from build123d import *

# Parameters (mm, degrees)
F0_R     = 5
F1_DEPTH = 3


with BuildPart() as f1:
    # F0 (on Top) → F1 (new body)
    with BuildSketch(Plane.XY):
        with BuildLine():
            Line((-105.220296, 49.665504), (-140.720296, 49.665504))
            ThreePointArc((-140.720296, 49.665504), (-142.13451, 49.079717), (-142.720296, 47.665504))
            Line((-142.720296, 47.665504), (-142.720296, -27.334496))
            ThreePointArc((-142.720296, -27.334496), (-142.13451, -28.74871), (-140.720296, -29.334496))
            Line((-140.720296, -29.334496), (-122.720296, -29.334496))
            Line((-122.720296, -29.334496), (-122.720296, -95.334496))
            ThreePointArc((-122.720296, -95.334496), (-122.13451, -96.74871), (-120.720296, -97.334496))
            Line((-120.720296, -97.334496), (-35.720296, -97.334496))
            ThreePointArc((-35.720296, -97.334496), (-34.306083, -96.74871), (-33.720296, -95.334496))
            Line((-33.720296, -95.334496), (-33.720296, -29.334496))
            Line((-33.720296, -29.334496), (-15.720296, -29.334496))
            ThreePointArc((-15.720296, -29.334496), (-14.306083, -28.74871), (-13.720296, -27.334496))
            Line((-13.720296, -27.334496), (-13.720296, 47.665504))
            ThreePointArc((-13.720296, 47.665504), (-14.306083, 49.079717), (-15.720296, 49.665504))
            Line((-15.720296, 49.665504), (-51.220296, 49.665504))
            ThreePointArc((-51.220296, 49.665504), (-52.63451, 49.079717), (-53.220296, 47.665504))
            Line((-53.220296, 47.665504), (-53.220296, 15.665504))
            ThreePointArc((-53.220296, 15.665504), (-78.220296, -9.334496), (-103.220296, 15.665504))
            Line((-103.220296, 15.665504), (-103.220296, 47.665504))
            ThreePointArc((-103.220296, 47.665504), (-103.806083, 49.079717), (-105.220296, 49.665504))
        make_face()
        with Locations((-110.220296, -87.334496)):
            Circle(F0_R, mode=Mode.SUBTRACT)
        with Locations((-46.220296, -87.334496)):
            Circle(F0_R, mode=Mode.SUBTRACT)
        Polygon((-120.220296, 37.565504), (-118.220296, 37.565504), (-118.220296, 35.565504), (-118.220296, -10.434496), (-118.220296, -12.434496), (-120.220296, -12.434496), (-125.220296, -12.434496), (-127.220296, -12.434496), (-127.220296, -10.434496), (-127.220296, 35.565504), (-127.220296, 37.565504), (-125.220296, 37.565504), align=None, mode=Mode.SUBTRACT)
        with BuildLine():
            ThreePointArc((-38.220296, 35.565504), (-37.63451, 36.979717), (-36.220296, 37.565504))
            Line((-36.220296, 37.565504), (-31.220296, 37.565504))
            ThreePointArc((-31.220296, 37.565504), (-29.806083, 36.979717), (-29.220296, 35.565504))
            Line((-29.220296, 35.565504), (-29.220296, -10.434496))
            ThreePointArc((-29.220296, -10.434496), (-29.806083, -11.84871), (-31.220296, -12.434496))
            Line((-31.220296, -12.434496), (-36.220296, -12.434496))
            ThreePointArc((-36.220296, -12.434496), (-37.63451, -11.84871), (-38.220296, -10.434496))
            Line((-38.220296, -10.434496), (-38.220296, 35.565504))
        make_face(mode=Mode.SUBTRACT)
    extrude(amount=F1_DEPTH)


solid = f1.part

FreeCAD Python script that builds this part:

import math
import FreeCAD as App
import Part
import Sketcher
from FreeCAD import Vector
Q = App.Units.Quantity


def add_polygon(sketch, points):
    """Adds a closed chain of lines whose ends are joined by coincident constraints."""
    first, n = sketch.GeometryCount, len(points)
    for a, b in zip(points, points[1:] + points[:1]):
        sketch.addGeometry(Part.LineSegment(App.Vector(*a, 0), App.Vector(*b, 0)), False)
    for i in range(n):
        sketch.addConstraint(Sketcher.Constraint("Coincident", first + i, 2, first + (i + 1) % n, 1))

doc = App.newDocument("Part")
body = doc.addObject("PartDesign::Body", "Body")

# Sketch on XY plane
sketch1 = body.newObject("Sketcher::SketchObject", "Sketch")
sketch1.AttachmentSupport = (doc.getObject("XY_Plane"), [""])
sketch1.MapMode = "FlatFace"
sketch1.addGeometry(Part.LineSegment(Vector(-105.2, 49.7, 0), Vector(-140.7, 49.7, 0)), False)  # 0
sketch1.addGeometry(Part.ArcOfCircle(Part.Circle(Vector(-140.7, 47.7, 0), Vector(0, 0, 1), 2), math.radians(90), math.radians(180)), False)  # 1
sketch1.addGeometry(Part.LineSegment(Vector(-142.7, 47.7, 0), Vector(-142.7, -27.3, 0)), False)  # 2
sketch1.addGeometry(Part.ArcOfCircle(Part.Circle(Vector(-140.7, -27.3, 0), Vector(0, 0, 1), 2), math.radians(180), math.radians(270)), False)  # 3
sketch1.addGeometry(Part.LineSegment(Vector(-140.7, -29.3, 0), Vector(-122.7, -29.3, 0)), False)  # 4
sketch1.addGeometry(Part.LineSegment(Vector(-122.7, -29.3, 0), Vector(-122.7, -95.3, 0)), False)  # 5
sketch1.addGeometry(Part.ArcOfCircle(Part.Circle(Vector(-120.7, -95.3, 0), Vector(0, 0, 1), 2), math.radians(180), math.radians(270)), False)  # 6
sketch1.addGeometry(Part.LineSegment(Vector(-120.7, -97.3, 0), Vector(-35.7, -97.3, 0)), False)  # 7
sketch1.addGeometry(Part.ArcOfCircle(Part.Circle(Vector(-35.7, -95.3, 0), Vector(0, 0, 1), 2), math.radians(-90), math.radians(0)), False)  # 8
sketch1.addGeometry(Part.LineSegment(Vector(-33.7, -95.3, 0), Vector(-33.7, -29.3, 0)), False)  # 9
sketch1.addGeometry(Part.LineSegment(Vector(-33.7, -29.3, 0), Vector(-15.7, -29.3, 0)), False)  # 10
sketch1.addGeometry(Part.ArcOfCircle(Part.Circle(Vector(-15.7, -27.3, 0), Vector(0, 0, 1), 2), math.radians(-90), math.radians(0)), False)  # 11
sketch1.addGeometry(Part.LineSegment(Vector(-13.7, -27.3, 0), Vector(-13.7, 47.7, 0)), False)  # 12
sketch1.addGeometry(Part.ArcOfCircle(Part.Circle(Vector(-15.7, 47.7, 0), Vector(0, 0, 1), 2), math.radians(0), math.radians(90)), False)  # 13
sketch1.addGeometry(Part.LineSegment(Vector(-15.7, 49.7, 0), Vector(-51.2, 49.7, 0)), False)  # 14
sketch1.addGeometry(Part.ArcOfCircle(Part.Circle(Vector(-51.2, 47.7, 0), Vector(0, 0, 1), 2), math.radians(90), math.radians(180)), False)  # 15
sketch1.addGeometry(Part.LineSegment(Vector(-53.2, 47.7, 0), Vector(-53.2, 15.7, 0)), False)  # 16
sketch1.addGeometry(Part.ArcOfCircle(Part.Circle(Vector(-78.2, 15.7, 0), Vector(0, 0, 1), 25), math.radians(180), math.radians(360)), False)  # 17
sketch1.addGeometry(Part.LineSegment(Vector(-103.2, 15.7, 0), Vector(-103.2, 47.7, 0)), False)  # 18
sketch1.addGeometry(Part.ArcOfCircle(Part.Circle(Vector(-105.2, 47.7, 0), Vector(0, 0, 1), 2), math.radians(0), math.radians(90)), False)  # 19
sketch1.addGeometry(Part.Circle(Vector(-110.2, -87.3, 0), Vector(0, 0, 1), 5), False)  # 20
sketch1.addGeometry(Part.Circle(Vector(-46.2, -87.3, 0), Vector(0, 0, 1), 5), False)  # 21
add_polygon(sketch1, [(-127.2, 37.6), (-118.2, 37.6), (-118.2, -12.4), (-127.2, -12.4)])  # lines 22-25
sketch1.addGeometry(Part.LineSegment(Vector(-38.2, -10.4, 0), Vector(-38.2, 35.6, 0)), False)  # 26
sketch1.addGeometry(Part.ArcOfCircle(Part.Circle(Vector(-36.2, 35.6, 0), Vector(0, 0, 1), 2), math.radians(90), math.radians(180)), False)  # 27
sketch1.addGeometry(Part.LineSegment(Vector(-36.2, 37.6, 0), Vector(-31.2, 37.6, 0)), False)  # 28
sketch1.addGeometry(Part.ArcOfCircle(Part.Circle(Vector(-31.2, 35.6, 0), Vector(0, 0, 1), 2), math.radians(0), math.radians(90)), False)  # 29
sketch1.addGeometry(Part.LineSegment(Vector(-29.2, 35.6, 0), Vector(-29.2, -10.4, 0)), False)  # 30
sketch1.addGeometry(Part.ArcOfCircle(Part.Circle(Vector(-31.2, -10.4, 0), Vector(0, 0, 1), 2), math.radians(-90), math.radians(0)), False)  # 31
sketch1.addGeometry(Part.LineSegment(Vector(-31.2, -12.4, 0), Vector(-36.2, -12.4, 0)), False)  # 32
sketch1.addGeometry(Part.ArcOfCircle(Part.Circle(Vector(-36.2, -10.4, 0), Vector(0, 0, 1), 2), math.radians(180), math.radians(270)), False)  # 33
sketch1.addConstraint([
    Sketcher.Constraint("Tangent", 0, 2, 1, 1),
    Sketcher.Constraint("Tangent", 1, 2, 2, 1),
    Sketcher.Constraint("Tangent", 2, 2, 3, 1),
    Sketcher.Constraint("Tangent", 3, 2, 4, 1),
    Sketcher.Constraint("Coincident", 4, 2, 5, 1),
    Sketcher.Constraint("Tangent", 5, 2, 6, 1),
    Sketcher.Constraint("Tangent", 6, 2, 7, 1),
    Sketcher.Constraint("Tangent", 7, 2, 8, 1),
    Sketcher.Constraint("Tangent", 8, 2, 9, 1),
    Sketcher.Constraint("Coincident", 9, 2, 10, 1),
    Sketcher.Constraint("Tangent", 10, 2, 11, 1),
    Sketcher.Constraint("Tangent", 11, 2, 12, 1),
    Sketcher.Constraint("Tangent", 12, 2, 13, 1),
    Sketcher.Constraint("Tangent", 13, 2, 14, 1),
    Sketcher.Constraint("Tangent", 14, 2, 15, 1),
    Sketcher.Constraint("Tangent", 15, 2, 16, 1),
    Sketcher.Constraint("Tangent", 16, 2, 17, 2),
    Sketcher.Constraint("Tangent", 17, 1, 18, 1),
    Sketcher.Constraint("Tangent", 18, 2, 19, 1),
    Sketcher.Constraint("Tangent", 19, 2, 0, 1),
    Sketcher.Constraint("Tangent", 26, 2, 27, 2),
    Sketcher.Constraint("Tangent", 27, 1, 28, 1),
    Sketcher.Constraint("Tangent", 28, 2, 29, 2),
    Sketcher.Constraint("Tangent", 29, 1, 30, 1),
    Sketcher.Constraint("Tangent", 30, 2, 31, 2),
    Sketcher.Constraint("Tangent", 31, 1, 32, 1),
    Sketcher.Constraint("Tangent", 32, 2, 33, 2),
    Sketcher.Constraint("Tangent", 33, 1, 26, 1),
    Sketcher.Constraint("Horizontal", 0),
    Sketcher.Constraint("Vertical", 2),
    Sketcher.Constraint("Horizontal", 4),
    Sketcher.Constraint("Vertical", 5),
    Sketcher.Constraint("Horizontal", 7),
    Sketcher.Constraint("Vertical", 9),
    Sketcher.Constraint("Horizontal", 10),
    Sketcher.Constraint("Vertical", 12),
    Sketcher.Constraint("Horizontal", 14),
    Sketcher.Constraint("Vertical", 16),
    Sketcher.Constraint("Vertical", 18),
    Sketcher.Constraint("Horizontal", 22),
    Sketcher.Constraint("Vertical", 23),
    Sketcher.Constraint("Horizontal", 24),
    Sketcher.Constraint("Vertical", 25),
    Sketcher.Constraint("Vertical", 26),
    Sketcher.Constraint("Horizontal", 28),
    Sketcher.Constraint("Vertical", 30),
    Sketcher.Constraint("Horizontal", 32),
    Sketcher.Constraint("Equal", 1, 3),
    Sketcher.Constraint("Equal", 3, 6),
    Sketcher.Constraint("Equal", 6, 8),
    Sketcher.Constraint("Equal", 8, 11),
    Sketcher.Constraint("Equal", 11, 13),
    Sketcher.Constraint("Equal", 13, 15),
    Sketcher.Constraint("Equal", 15, 19),
    Sketcher.Constraint("Equal", 20, 21),
    Sketcher.Constraint("Equal", 19, 27),
    Sketcher.Constraint("Equal", 27, 29),
    Sketcher.Constraint("Equal", 29, 31),
    Sketcher.Constraint("Equal", 31, 33),
    Sketcher.Constraint("Horizontal", 3, 3, 11, 3),
    Sketcher.Constraint("Horizontal", 1, 3, 13, 3),
    Sketcher.Constraint("Horizontal", 20, 3, 21, 3),
    Sketcher.Constraint("Horizontal", 25, 2, 27, 1),
    Sketcher.Constraint("Horizontal", 24, 2, 31, 1),
    Sketcher.Constraint("Equal", 4, 10),
    Sketcher.Constraint("Equal", 0, 14),
    Sketcher.Constraint("Diameter", 20, Q("10 mm")),
    Sketcher.Constraint("Radius", 1, Q("2 mm")),
    Sketcher.Constraint("Radius", 17, Q("25 mm")),
    Sketcher.Constraint("DistanceX", 4, 1, 4, 2, Q("18 mm")),
    Sketcher.Constraint("DistanceX", 7, 1, 7, 2, Q("85 mm")),
    Sketcher.Constraint("DistanceX", 22, 1, 22, 2, Q("9 mm")),
    Sketcher.Constraint("DistanceX", 28, 1, 28, 2, Q("5 mm")),
    Sketcher.Constraint("DistanceY", 2, 2, 2, 1, Q("75 mm")),
    Sketcher.Constraint("DistanceY", 5, 2, 5, 1, Q("66 mm")),
    Sketcher.Constraint("DistanceY", 16, 2, 16, 1, Q("32 mm")),
    Sketcher.Constraint("DistanceY", 23, 2, 23, 1, Q("50 mm")),
    Sketcher.Constraint("DistanceY", 6, 3, 20, 3, Q("8.000001 mm")),
    Sketcher.Constraint("DistanceX", 20, 3, 17, 3, Q("32 mm")),
    Sketcher.Constraint("DistanceX", 20, 3, 21, 3, Q("64 mm")),
    Sketcher.Constraint("DistanceX", 15, 3, 27, 3, Q("15 mm")),
    Sketcher.Constraint("DistanceX", 22, 2, 19, 3, Q("12.999998 mm")),
    Sketcher.Constraint("DistanceY", 27, 3, 15, 3, Q("12.1 mm")),
    Sketcher.Constraint("DistanceX", 1, 3, -1, 1, Q("140.720296 mm")),
    Sketcher.Constraint("DistanceY", -1, 1, 1, 3, Q("47.665504 mm")),
])
pad1 = body.newObject("PartDesign::Pad", "Pad")
pad1.Profile = sketch1
pad1.Length = 3

doc.recompute()
